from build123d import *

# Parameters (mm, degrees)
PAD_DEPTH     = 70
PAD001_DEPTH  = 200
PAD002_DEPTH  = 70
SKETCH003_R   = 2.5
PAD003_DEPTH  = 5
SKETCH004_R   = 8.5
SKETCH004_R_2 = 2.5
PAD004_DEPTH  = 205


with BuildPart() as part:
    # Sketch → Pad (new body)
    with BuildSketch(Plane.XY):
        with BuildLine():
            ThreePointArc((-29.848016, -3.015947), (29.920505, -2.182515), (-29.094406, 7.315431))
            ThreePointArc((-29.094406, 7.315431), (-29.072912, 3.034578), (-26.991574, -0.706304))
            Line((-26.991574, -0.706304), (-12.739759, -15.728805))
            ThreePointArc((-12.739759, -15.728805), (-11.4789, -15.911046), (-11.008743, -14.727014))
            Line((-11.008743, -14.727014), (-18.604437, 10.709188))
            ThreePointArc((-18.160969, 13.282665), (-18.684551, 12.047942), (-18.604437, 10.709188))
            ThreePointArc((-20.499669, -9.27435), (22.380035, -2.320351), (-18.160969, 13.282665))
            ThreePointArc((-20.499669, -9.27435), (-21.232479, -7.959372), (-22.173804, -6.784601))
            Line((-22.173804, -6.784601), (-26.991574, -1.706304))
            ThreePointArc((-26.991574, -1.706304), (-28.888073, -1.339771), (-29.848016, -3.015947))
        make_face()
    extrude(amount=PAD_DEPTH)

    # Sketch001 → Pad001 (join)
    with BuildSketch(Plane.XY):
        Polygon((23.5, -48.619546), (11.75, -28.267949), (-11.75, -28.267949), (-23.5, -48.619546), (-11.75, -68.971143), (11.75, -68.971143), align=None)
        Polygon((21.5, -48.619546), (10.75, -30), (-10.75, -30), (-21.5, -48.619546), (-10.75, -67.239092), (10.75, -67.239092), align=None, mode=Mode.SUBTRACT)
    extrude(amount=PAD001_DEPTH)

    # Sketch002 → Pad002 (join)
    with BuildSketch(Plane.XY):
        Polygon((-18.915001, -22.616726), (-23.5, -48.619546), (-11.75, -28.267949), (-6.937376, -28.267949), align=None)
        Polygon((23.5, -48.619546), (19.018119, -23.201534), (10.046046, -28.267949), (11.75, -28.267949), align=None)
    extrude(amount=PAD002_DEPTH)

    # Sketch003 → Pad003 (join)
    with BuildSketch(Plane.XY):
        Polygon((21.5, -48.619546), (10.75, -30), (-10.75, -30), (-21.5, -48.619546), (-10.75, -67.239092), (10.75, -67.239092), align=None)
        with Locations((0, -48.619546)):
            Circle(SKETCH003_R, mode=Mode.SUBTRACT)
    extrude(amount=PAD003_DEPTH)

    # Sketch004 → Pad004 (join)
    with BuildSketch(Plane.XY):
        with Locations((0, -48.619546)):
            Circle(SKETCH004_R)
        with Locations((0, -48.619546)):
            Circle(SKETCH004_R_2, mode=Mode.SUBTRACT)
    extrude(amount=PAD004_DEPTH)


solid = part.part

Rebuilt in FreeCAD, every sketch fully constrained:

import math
import FreeCAD as App
import Part
import Sketcher
Q = App.Units.Quantity


def add_polygon(sketch, points):
    """Adds a closed chain of lines whose ends are joined by coincident constraints."""
    first, n = sketch.GeometryCount, len(points)
    for a, b in zip(points, points[1:] + points[:1]):
        sketch.addGeometry(Part.LineSegment(App.Vector(*a, 0), App.Vector(*b, 0)), False)
    for i in range(n):
        sketch.addConstraint(Sketcher.Constraint("Coincident", first + i, 2, first + (i + 1) % n, 1))

doc = App.newDocument("Part")
body = doc.addObject("PartDesign::Body", "Body")

# Sketch on XY plane
sketch1 = doc.addObject("Sketcher::SketchObject", "Sketch")
body.addObject(sketch1)
sketch1.AttachmentSupport = (doc.XY_Plane, [""])
sketch1.MapMode = "FlatFace"
sketch1.addGeometry(Part.ArcOfCircle(Part.Circle(App.Vector(0, 0, 0), App.Vector(0, 0, 1), 30), math.radians(-174.230219), math.radians(165.886253)), False)
sketch1.addGeometry(Part.ArcOfCircle(Part.Circle(App.Vector(-20.748108, 5.216857, 0), App.Vector(0, 0, 1), 8.606085), math.radians(165.886254), math.radians(223.491949)), False)
sketch1.addGeometry(Part.LineSegment(App.Vector(-26.991574, -0.706304, 0), App.Vector(-12.739759, -15.728805, 0)), False)
sketch1.addGeometry(Part.ArcOfCircle(Part.Circle(App.Vector(-11.993883, -15.021195, 0), App.Vector(0, 0, 1), 1.028126), math.radians(-136.508054), math.radians(16.626568)), False)
sketch1.addGeometry(Part.LineSegment(App.Vector(-11.008743, -14.727014, 0), App.Vector(-18.604437, 10.709188, 0)), False)
sketch1.addGeometry(Part.ArcOfCircle(Part.Circle(App.Vector(-15.791029, 11.549323, 0), App.Vector(0, 0, 1), 2.93617), math.radians(143.818768), math.radians(196.626577)), False)
sketch1.addGeometry(Part.ArcOfCircle(Part.Circle(App.Vector(0, 0, 0), App.Vector(0, 0, 1), 22.5), math.radians(-155.657309), math.radians(143.818812)), False)
sketch1.addGeometry(Part.ArcOfCircle(Part.Circle(App.Vector(-28.716761, -12.991886, 0), App.Vector(0, 0, 1), 9.018906), math.radians(24.342712), math.radians(43.491941)), False)
sketch1.addGeometry(Part.LineSegment(App.Vector(-22.173804, -6.784601, 0), App.Vector(-26.991574, -1.706304, 0)), False)
sketch1.addGeometry(Part.ArcOfCircle(Part.Circle(App.Vector(-28.196096, -2.849032, 0), App.Vector(0, 0, 1), 1.660331), math.radians(43.491965), math.radians(185.769764)), False)
sketch1.addConstraint(Sketcher.Constraint("Coincident", 0, 2, 1, 1))
sketch1.addConstraint(Sketcher.Constraint("Coincident", 1, 2, 2, 1))
sketch1.addConstraint(Sketcher.Constraint("Coincident", 2, 2, 3, 1))
sketch1.addConstraint(Sketcher.Constraint("Coincident", 3, 2, 4, 1))
sketch1.addConstraint(Sketcher.Constraint("Coincident", 4, 2, 5, 2))
sketch1.addConstraint(Sketcher.Constraint("Coincident", 5, 1, 6, 2))
sketch1.addConstraint(Sketcher.Constraint("Coincident", 6, 1, 7, 1))
sketch1.addConstraint(Sketcher.Constraint("Coincident", 7, 2, 8, 1))
sketch1.addConstraint(Sketcher.Constraint("Coincident", 8, 2, 9, 1))
sketch1.addConstraint(Sketcher.Constraint("Coincident", 9, 2, 0, 1))
sketch1.addConstraint(Sketcher.Constraint("Coincident", 0, 3, -1, 1))
sketch1.addConstraint(Sketcher.Constraint("Coincident", 6, 3, -1, 1))
sketch1.addConstraint(Sketcher.Constraint("Radius", 0, Q("30 mm")))
sketch1.addConstraint(Sketcher.Constraint("Radius", 6, Q("22.5 mm")))
sketch1.addConstraint(Sketcher.Constraint("Distance", 8, Q("7.000001 mm")))
sketch1.addConstraint(Sketcher.Constraint("DistanceY", 8, 2, 1, 2, Q("1 mm")))
sketch1.addConstraint(Sketcher.Constraint("Radius", 5, Q("2.93617 mm")))
sketch1.addConstraint(Sketcher.Constraint("Radius", 9, Q("1.660331 mm")))
sketch1.addConstraint(Sketcher.Constraint("Radius", 1, Q("8.606085 mm")))
sketch1.addConstraint(Sketcher.Constraint("Radius", 3, Q("1.028126 mm")))
sketch1.addConstraint(Sketcher.Constraint("Radius", 7, Q("9.018906 mm")))
sketch1.addConstraint(Sketcher.Constraint("DistanceX", 7, 3, 2, 2, Q("15.977002 mm")))
sketch1.addConstraint(Sketcher.Constraint("DistanceY", 7, 2, -1, 1, Q("6.784601 mm")))
sketch1.addConstraint(Sketcher.Constraint("DistanceX", 0, 2, 1, 3, Q("8.346298 mm")))
sketch1.addConstraint(Sketcher.Constraint("Distance", 2, Q("20.707239 mm")))
sketch1.addConstraint(Sketcher.Constraint("Distance", 4, Q("26.546091 mm")))
sketch1.addConstraint(Sketcher.Constraint("DistanceX", 5, 3, -1, 1, Q("15.791029 mm")))
sketch1.addConstraint(Sketcher.Constraint("DistanceX", 7, 3, -1, 1, Q("28.716761 mm")))
sketch1.addConstraint(Sketcher.Constraint("DistanceY", 9, 3, -1, 1, Q("2.849032 mm")))
sketch1.addConstraint(Sketcher.Constraint("DistanceY", -1, 1, 0, 2, Q("7.315431 mm")))
sketch1.addConstraint(Sketcher.Constraint("DistanceX", 5, 1, -1, 1, Q("18.160969 mm")))
sketch1.addConstraint(Sketcher.Constraint("DistanceX", 6, 1, -1, 1, Q("20.499669 mm")))
sketch1.addConstraint(Sketcher.Constraint("DistanceY", 3, 3, 1, 3, Q("20.238051 mm")))
sketch1.addConstraint(Sketcher.Constraint("DistanceX", 3, 3, 3, 2, Q("0.98514 mm")))
sketch1.addConstraint(Sketcher.Constraint("DistanceX", 9, 2, 9, 3, Q("1.65192 mm")))
pad1 = doc.addObject("PartDesign::Pad", "Pad")
body.addObject(pad1)
pad1.Profile = sketch1
pad1.Length = 70

# Sketch on XY plane
sketch2 = doc.addObject("Sketcher::SketchObject", "Sketch001")
body.addObject(sketch2)
sketch2.AttachmentSupport = (doc.XY_Plane, [""])
sketch2.MapMode = "FlatFace"
add_polygon(sketch2, [(24, -49), (12, -28), (-12, -28), (-24, -49), (-12, -69), (12, -69)])  # lines 0-5
add_polygon(sketch2, [(11, -30), (22, -49), (11, -67), (-11, -67), (-22, -49), (-11, -30)])  # lines 6-11
sketch2.addConstraint(Sketcher.Constraint("Horizontal", 1))
sketch2.addConstraint(Sketcher.Constraint("Horizontal", 4))
sketch2.addConstraint(Sketcher.Constraint("Horizontal", 8))
sketch2.addConstraint(Sketcher.Constraint("Horizontal", 11))
sketch2.addConstraint(Sketcher.Constraint("Symmetric", 2, 2, 5, 2, -2))
sketch2.addConstraint(Sketcher.Constraint("Symmetric", 6, 2, 9, 2, -2))
sketch2.addConstraint(Sketcher.Constraint("Parallel", 0, 3))
sketch2.addConstraint(Sketcher.Constraint("Parallel", 2, 5))
sketch2.addConstraint(Sketcher.Constraint("Parallel", 3, 6))
sketch2.addConstraint(Sketcher.Constraint("Parallel", 5, 7))
sketch2.addConstraint(Sketcher.Constraint("Parallel", 6, 9))
sketch2.addConstraint(Sketcher.Constraint("Parallel", 7, 10))
sketch2.addConstraint(Sketcher.Constraint("Horizontal", 5, 2, 6, 2))
sketch2.addConstraint(Sketcher.Constraint("Vertical", 1, 2, 3, 2))
sketch2.addConstraint(Sketcher.Constraint("Vertical", 0, 2, 4, 2))
sketch2.addConstraint(Sketcher.Constraint("Vertical", 8, 2, 10, 2))
sketch2.addConstraint(Sketcher.Constraint("Angle", 0, Q("120 deg")))
sketch2.addConstraint(Sketcher.Constraint("DistanceX", 1, 2, 1, 1, Q("23.5 mm")))
sketch2.addConstraint(Sketcher.Constraint("DistanceX", 8, 2, 8, 1, Q("21.5 mm")))
sketch2.addConstraint(Sketcher.Constraint("DistanceY", 10, 2, -1, 1, Q("30 mm")))
sketch2.addConstraint(Sketcher.Constraint("DistanceX", 2, 2, 5, 2, Q("47 mm")))
sketch2.addConstraint(Sketcher.Constraint("DistanceX", 6, 2, 5, 2, Q("2 mm")))
pad2 = doc.addObject("PartDesign::Pad", "Pad001")
body.addObject(pad2)
pad2.Profile = sketch2
pad2.Length = 200

# Sketch on XY plane
sketch3 = doc.addObject("Sketcher::SketchObject", "Sketch002")
body.addObject(sketch3)
sketch3.AttachmentSupport = (doc.XY_Plane, [""])
sketch3.MapMode = "FlatFace"
add_polygon(sketch3, [(-18.9, -22.6), (-23.5, -48.6), (-11.8, -28.3), (-6.9, -28.3)])  # lines 0-3
add_polygon(sketch3, [(23.5, -48.6), (19, -23.2), (10, -28.3), (11.8, -28.3)])  # lines 4-7
sketch3.addConstraint(Sketcher.Constraint("Horizontal", 2))
sketch3.addConstraint(Sketcher.Constraint("Horizontal", 6))
sketch3.addConstraint(Sketcher.Constraint("Symmetric", 1, 2, 6, 2, -2))
sketch3.addConstraint(Sketcher.Constraint("Symmetric", 0, 2, 7, 2, -2))
sketch3.addConstraint(Sketcher.Constraint("Angle", 0, Q("-100.000001 deg")))
sketch3.addConstraint(Sketcher.Constraint("Angle", 1, Q("60 deg")))
sketch3.addConstraint(Sketcher.Constraint("Angle", 4, Q("99.999999 deg")))
sketch3.addConstraint(Sketcher.Constraint("Distance", 1, Q("23.5 mm")))
sketch3.addConstraint(Sketcher.Constraint("DistanceX", 0, 2, -1, 1, Q("23.5 mm")))
sketch3.addConstraint(Sketcher.Constraint("DistanceX", 3, 2, -1, 1, Q("18.915001 mm")))
sketch3.addConstraint(Sketcher.Constraint("Distance", 3, Q("13.24386 mm")))
sketch3.addConstraint(Sketcher.Constraint("Distance", 5, Q("10.30372 mm")))
sketch3.addConstraint(Sketcher.Constraint("DistanceX", 6, 1, 6, 2, Q("1.703954 mm")))
sketch3.addConstraint(Sketcher.Constraint("DistanceY", 1, 2, -1, 1, Q("28.267949 mm")))
pad3 = doc.addObject("PartDesign::Pad", "Pad002")
body.addObject(pad3)
pad3.Profile = sketch3
pad3.Length = 70

# Sketch on XY plane
sketch4 = doc.addObject("Sketcher::SketchObject", "Sketch003")
body.addObject(sketch4)
sketch4.AttachmentSupport = (doc.XY_Plane, [""])
sketch4.MapMode = "FlatFace"
add_polygon(sketch4, [(21.5, -48.6), (10.8, -30), (-10.8, -30), (-21.5, -48.6), (-10.8, -67.2), (10.8, -67.2)])  # lines 0-5
sketch4.addGeometry(Part.Circle(App.Vector(0, -48.6, 0), App.Vector(0, 0, 1), 2.5), False)  # 6
sketch4.addConstraint(Sketcher.Constraint("Horizontal", 1))
sketch4.addConstraint(Sketcher.Constraint("Horizontal", 4))
sketch4.addConstraint(Sketcher.Constraint("Symmetric", 2, 2, 5, 2, -2))
sketch4.addConstraint(Sketcher.Constraint("PointOnObject", 6, 3, -2))
sketch4.addConstraint(Sketcher.Constraint("Parallel", 0, 3))
sketch4.addConstraint(Sketcher.Constraint("Parallel", 2, 5))
sketch4.addConstraint(Sketcher.Constraint("Horizontal", 6, 3, 2, 2))
sketch4.addConstraint(Sketcher.Constraint("Vertical", 1, 2, 3, 2))
sketch4.addConstraint(Sketcher.Constraint("Vertical", 0, 2, 4, 2))
sketch4.addConstraint(Sketcher.Constraint("Diameter", 6, Q("5 mm")))
sketch4.addConstraint(Sketcher.Constraint("Angle", 0, Q("120 deg")))
sketch4.addConstraint(Sketcher.Constraint("DistanceX", 1, 2, 1, 1, Q("21.5 mm")))
sketch4.addConstraint(Sketcher.Constraint("DistanceY", 0, 2, -1, 1, Q("30 mm")))
sketch4.addConstraint(Sketcher.Constraint("Distance", 0, Q("21.5 mm")))
pad4 = doc.addObject("PartDesign::Pad", "Pad003")
body.addObject(pad4)
pad4.Profile = sketch4
pad4.Length = 5

# Sketch on XY plane
sketch5 = doc.addObject("Sketcher::SketchObject", "Sketch004")
body.addObject(sketch5)
sketch5.AttachmentSupport = (doc.XY_Plane, [""])
sketch5.MapMode = "FlatFace"
sketch5.addGeometry(Part.Circle(App.Vector(0, -48.6, 0), App.Vector(0, 0, 1), 8.5), False)
sketch5.addGeometry(Part.Circle(App.Vector(0, -48.6, 0), App.Vector(0, 0, 1), 2.5), False)
sketch5.addConstraint(Sketcher.Constraint("Coincident", 1, 3, 0, 3))
sketch5.addConstraint(Sketcher.Constraint("PointOnObject", 0, 3, -2))
sketch5.addConstraint(Sketcher.Constraint("Diameter", 0, Q("17 mm")))
sketch5.addConstraint(Sketcher.Constraint("Diameter", 1, Q("5 mm")))
sketch5.addConstraint(Sketcher.Constraint("DistanceY", 0, 3, -1, 1, Q("48.619546 mm")))
pad5 = doc.addObject("PartDesign::Pad", "Pad004")
body.addObject(pad5)
pad5.Profile = sketch5
pad5.Length = 205

doc.recompute()
